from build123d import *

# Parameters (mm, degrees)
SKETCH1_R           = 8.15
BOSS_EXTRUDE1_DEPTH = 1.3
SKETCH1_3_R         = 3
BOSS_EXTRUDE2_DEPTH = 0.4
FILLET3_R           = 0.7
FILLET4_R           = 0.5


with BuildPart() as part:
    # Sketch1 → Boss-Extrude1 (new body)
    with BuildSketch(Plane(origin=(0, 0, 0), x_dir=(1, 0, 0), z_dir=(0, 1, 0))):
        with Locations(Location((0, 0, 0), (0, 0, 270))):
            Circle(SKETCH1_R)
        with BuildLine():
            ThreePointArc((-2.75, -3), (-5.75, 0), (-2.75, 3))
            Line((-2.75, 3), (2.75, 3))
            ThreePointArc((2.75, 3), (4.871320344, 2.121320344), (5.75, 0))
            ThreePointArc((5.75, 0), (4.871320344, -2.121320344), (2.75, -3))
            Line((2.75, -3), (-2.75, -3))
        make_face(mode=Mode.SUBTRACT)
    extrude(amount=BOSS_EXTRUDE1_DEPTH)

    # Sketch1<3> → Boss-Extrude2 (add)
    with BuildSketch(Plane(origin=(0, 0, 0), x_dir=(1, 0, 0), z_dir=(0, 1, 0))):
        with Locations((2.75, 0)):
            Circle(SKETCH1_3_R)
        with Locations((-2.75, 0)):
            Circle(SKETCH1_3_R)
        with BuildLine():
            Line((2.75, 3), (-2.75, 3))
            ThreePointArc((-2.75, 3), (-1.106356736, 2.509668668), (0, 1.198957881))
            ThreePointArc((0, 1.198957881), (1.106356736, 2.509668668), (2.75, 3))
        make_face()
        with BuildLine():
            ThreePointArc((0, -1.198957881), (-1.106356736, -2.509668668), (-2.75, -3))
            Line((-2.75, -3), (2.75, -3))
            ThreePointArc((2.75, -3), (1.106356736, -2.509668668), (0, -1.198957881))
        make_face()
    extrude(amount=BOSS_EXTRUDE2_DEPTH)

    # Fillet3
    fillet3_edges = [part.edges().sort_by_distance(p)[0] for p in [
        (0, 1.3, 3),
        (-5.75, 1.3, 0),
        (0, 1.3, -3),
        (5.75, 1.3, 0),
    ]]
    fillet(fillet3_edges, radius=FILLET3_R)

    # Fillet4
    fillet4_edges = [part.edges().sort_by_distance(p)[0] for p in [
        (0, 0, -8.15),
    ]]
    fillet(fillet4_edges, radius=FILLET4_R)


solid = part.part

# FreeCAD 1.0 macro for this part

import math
import FreeCAD as App
import Part
import Sketcher
from FreeCAD import Vector
Q = App.Units.Quantity


def edges_at(feature, points):
    """Names of the edges that pass closest to the given points."""
    edges = feature.Shape.Edges
    near = lambda p: min(range(len(edges)), key=lambda i: edges[i].distToShape(Part.Vertex(*p))[0])
    return sorted({f"Edge{near(p) + 1}" for p in points})

doc = App.newDocument("Part")
body = doc.addObject("PartDesign::Body", "Body")

sketch1 = body.newObject("Sketcher::SketchObject", "Sketch")
sketch1.AttachmentSupport = (doc.getObject("XZ_Plane"), [""])
sketch1.MapMode = "FlatFace"
sketch1.addGeometry([
    Part.Circle(Vector(0, 0, 0), Vector(0, 0, 1), 8.15),
    Part.LineSegment(Vector(2.75, 3, 0), Vector(-2.75, 3, 0)),
    Part.ArcOfCircle(Part.Circle(Vector(-2.75, 0, 0), Vector(0, 0, 1), 3), math.radians(90), math.radians(270)),
    Part.LineSegment(Vector(-2.75, -3, 0), Vector(2.75, -3, 0)),
    Part.ArcOfCircle(Part.Circle(Vector(2.75, 0, 0), Vector(0, 0, 1), 3), math.radians(-90), math.radians(0)),
    Part.ArcOfCircle(Part.Circle(Vector(2.75, 0, 0), Vector(0, 0, 1), 3), math.radians(0), math.radians(90)),
], False)
sketch1.addConstraint([
    Sketcher.Constraint("Tangent", 1, 2, 2, 1),
    Sketcher.Constraint("Tangent", 2, 2, 3, 1),
    Sketcher.Constraint("Tangent", 3, 2, 4, 1),
    Sketcher.Constraint("Tangent", 4, 2, 5, 1),
    Sketcher.Constraint("Tangent", 5, 2, 1, 1),
    Sketcher.Constraint("Horizontal", 1),
    Sketcher.Constraint("Horizontal", 3),
    Sketcher.Constraint("Coincident", 0, 3, -1, 1),
    Sketcher.Constraint("Equal", 2, 4),
    Sketcher.Constraint("Symmetric", 2, 3, 4, 3, -1, 1),
    Sketcher.Constraint("PointOnObject", 4, 2, -1),
    Sketcher.Constraint("Radius", 2, Q("3 mm")),
    Sketcher.Constraint("Diameter", 0, Q("16.3 mm")),
    Sketcher.Constraint("DistanceX", 1, 2, 1, 1, Q("5.5 mm")),
])
pad1 = body.newObject("PartDesign::Pad", "Pad")
pad1.Profile = sketch1
pad1.Length = 1.3
pad1.Reversed = True

sketch2 = body.newObject("Sketcher::SketchObject", "Sketch001")
sketch2.AttachmentSupport = (doc.getObject("XZ_Plane"), [""])
sketch2.MapMode = "FlatFace"
sketch2.addGeometry([
    Part.ArcOfCircle(Part.Circle(Vector(-2.75, 0, 0), Vector(0, 0, 1), 3), math.radians(90), math.radians(270)),
    Part.LineSegment(Vector(-2.75, 3, 0), Vector(2.75, 3, 0)),
    Part.ArcOfCircle(Part.Circle(Vector(2.75, 0, 0), Vector(0, 0, 1), 3), math.radians(-90), math.radians(90)),
    Part.LineSegment(Vector(2.75, -3, 0), Vector(-2.75, -3, 0)),
], False)
sketch2.addConstraint([
    Sketcher.Constraint("Tangent", 0, 1, 1, 1),
    Sketcher.Constraint("Tangent", 1, 2, 2, 2),
    Sketcher.Constraint("Tangent", 2, 1, 3, 1),
    Sketcher.Constraint("Tangent", 3, 2, 0, 2),
    Sketcher.Constraint("Horizontal", 1),
    Sketcher.Constraint("Horizontal", 3),
    Sketcher.Constraint("Symmetric", 0, 3, 2, 3, -1, 1),
    Sketcher.Constraint("Radius", 0, Q("3 mm")),
    Sketcher.Constraint("DistanceX", 1, 1, 1, 2, Q("5.5 mm")),
])
pad2 = body.newObject("PartDesign::Pad", "Pad001")
pad2.Profile = sketch2
pad2.Length = 0.4
pad2.Reversed = True
doc.recompute()

fillet = body.newObject("PartDesign::Fillet", "Fillet")
fillet.Base = (pad2, edges_at(pad2, [
    (0, 1.3, 3),
    (-5.75, 1.3, 0),
    (0, 1.3, -3),
    (4.871, 1.3, 2.121),
]))
fillet.Radius = 0.7
doc.recompute()

fillet2 = body.newObject("PartDesign::Fillet", "Fillet001")
fillet2.Base = (fillet, edges_at(fillet, [(0, 0, -8.15)]))
fillet2.Radius = 0.5

doc.recompute()
